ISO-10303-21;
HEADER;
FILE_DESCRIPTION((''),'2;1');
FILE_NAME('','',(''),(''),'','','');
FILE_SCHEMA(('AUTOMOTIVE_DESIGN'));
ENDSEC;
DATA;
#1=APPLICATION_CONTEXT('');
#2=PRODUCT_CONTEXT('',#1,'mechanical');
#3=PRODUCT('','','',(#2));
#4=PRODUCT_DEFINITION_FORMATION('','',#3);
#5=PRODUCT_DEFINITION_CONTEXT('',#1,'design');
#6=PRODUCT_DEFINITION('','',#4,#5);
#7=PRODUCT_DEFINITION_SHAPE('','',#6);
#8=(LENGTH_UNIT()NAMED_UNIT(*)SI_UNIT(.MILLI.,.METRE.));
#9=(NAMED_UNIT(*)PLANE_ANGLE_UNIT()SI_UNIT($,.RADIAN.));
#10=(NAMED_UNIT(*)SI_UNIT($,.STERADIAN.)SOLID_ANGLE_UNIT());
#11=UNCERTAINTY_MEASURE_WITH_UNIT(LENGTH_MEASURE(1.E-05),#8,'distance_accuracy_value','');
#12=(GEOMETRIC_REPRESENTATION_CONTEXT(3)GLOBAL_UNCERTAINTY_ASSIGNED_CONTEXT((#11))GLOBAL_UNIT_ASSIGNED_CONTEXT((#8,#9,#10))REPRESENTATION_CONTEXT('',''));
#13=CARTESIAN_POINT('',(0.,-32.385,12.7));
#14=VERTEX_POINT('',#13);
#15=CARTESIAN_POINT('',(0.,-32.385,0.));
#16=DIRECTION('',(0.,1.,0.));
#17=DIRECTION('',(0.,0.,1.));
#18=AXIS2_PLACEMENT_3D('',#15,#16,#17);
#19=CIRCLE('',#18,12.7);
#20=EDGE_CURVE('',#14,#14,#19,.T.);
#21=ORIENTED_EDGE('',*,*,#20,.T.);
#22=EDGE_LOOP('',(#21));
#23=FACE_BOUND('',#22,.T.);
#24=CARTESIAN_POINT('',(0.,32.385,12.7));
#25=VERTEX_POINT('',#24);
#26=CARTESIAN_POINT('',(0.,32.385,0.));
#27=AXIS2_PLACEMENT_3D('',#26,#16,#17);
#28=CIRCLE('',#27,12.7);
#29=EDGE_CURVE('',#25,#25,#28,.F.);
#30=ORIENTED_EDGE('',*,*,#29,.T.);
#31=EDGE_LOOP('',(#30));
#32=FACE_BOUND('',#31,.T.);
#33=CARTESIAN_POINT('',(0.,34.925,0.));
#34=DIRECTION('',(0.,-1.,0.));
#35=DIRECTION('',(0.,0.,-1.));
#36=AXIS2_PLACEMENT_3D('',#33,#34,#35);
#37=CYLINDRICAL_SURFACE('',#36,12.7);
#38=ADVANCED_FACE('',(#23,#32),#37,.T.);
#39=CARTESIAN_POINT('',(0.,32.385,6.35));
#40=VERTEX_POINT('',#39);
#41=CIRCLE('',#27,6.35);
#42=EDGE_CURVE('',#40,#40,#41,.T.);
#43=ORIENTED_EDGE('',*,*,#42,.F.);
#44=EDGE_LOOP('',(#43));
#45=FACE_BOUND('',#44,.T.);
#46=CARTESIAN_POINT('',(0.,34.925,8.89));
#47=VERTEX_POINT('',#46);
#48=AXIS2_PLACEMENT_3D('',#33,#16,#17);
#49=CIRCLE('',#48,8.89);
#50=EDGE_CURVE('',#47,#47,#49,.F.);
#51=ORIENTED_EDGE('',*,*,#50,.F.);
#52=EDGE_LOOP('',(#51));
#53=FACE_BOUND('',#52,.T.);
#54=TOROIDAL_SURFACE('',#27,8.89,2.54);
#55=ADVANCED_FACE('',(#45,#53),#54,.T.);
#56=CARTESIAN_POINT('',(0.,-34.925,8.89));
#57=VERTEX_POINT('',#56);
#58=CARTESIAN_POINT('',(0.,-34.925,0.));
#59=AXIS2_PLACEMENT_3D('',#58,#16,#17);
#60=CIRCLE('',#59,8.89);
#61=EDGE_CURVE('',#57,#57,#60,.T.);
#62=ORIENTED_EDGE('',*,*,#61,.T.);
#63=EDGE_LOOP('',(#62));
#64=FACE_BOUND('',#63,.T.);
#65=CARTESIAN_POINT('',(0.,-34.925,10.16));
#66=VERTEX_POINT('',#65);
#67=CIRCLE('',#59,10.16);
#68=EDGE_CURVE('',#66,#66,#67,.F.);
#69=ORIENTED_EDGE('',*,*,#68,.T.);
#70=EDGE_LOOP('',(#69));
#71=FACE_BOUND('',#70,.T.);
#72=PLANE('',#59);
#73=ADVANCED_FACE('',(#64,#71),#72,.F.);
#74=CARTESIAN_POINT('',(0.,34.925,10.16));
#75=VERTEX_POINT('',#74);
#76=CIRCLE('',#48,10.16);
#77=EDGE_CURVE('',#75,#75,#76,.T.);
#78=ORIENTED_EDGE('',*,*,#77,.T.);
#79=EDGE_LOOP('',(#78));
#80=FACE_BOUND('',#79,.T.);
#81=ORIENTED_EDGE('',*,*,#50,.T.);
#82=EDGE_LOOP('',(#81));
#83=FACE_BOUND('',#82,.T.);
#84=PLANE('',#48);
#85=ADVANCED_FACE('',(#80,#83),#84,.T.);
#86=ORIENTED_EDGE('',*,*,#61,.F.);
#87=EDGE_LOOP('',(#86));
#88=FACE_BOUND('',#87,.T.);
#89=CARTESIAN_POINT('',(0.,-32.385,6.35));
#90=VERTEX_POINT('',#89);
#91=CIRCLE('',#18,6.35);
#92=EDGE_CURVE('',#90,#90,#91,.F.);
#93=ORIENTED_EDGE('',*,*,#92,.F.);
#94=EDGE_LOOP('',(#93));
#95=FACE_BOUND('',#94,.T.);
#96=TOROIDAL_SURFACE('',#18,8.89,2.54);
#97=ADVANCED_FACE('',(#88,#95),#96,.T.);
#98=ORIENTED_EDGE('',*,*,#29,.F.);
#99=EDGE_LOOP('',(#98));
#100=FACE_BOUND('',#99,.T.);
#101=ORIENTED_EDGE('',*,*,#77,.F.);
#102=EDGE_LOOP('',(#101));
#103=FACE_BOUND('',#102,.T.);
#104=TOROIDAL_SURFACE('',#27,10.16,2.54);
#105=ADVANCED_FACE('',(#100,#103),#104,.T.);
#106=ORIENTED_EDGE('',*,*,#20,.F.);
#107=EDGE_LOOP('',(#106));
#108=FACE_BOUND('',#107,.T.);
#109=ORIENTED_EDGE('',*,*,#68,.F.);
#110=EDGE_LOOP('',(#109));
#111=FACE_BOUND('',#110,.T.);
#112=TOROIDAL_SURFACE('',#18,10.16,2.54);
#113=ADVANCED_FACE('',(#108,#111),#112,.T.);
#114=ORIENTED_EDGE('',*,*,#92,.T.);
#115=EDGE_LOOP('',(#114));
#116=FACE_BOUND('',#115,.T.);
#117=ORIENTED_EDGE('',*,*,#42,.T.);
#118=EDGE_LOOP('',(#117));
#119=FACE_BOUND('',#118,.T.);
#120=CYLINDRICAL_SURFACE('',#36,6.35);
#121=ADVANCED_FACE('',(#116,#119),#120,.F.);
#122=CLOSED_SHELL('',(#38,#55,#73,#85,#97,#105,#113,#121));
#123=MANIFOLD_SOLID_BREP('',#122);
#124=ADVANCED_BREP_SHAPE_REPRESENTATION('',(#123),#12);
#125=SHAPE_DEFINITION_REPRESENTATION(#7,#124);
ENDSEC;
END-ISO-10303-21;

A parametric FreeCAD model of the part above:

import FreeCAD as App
import Part
import Sketcher

V = App.Vector
Q = App.Units.Quantity


def edges_at(feature, points):
    """Names of the edges that pass closest to the given points."""
    edges = feature.Shape.Edges
    near = lambda p: min(range(len(edges)), key=lambda i: edges[i].distToShape(Part.Vertex(*p))[0])
    return sorted({f"Edge{near(p) + 1}" for p in points})

doc = App.newDocument("Part")
body = doc.addObject("PartDesign::Body", "Body")

sketch1 = body.newObject("Sketcher::SketchObject", "Sketch")
sketch1.AttachmentSupport = (doc.getObject("XZ_Plane"), [""])
sketch1.MapMode = "FlatFace"
sketch1.addGeometry([
    Part.Circle(V(0, 0, 0), V(0, 0, 1), 12.7),
    Part.Circle(V(0, 0, 0), V(0, 0, 1), 6.35),
], False)
sketch1.addConstraint([
    Sketcher.Constraint("Coincident", 0, 3, -1, 1),
    Sketcher.Constraint("Coincident", 1, 3, -1, 1),
    Sketcher.Constraint("Diameter", 0, Q("1 in")),
    Sketcher.Constraint("Diameter", 1, Q("0.5 in")),
])
pad1 = body.newObject("PartDesign::Pad", "Pad")
pad1.Profile = sketch1
pad1.Length = Q("2.75 in")
pad1.Midplane = True
doc.recompute()

fillet = body.newObject("PartDesign::Fillet", "Fillet")
fillet.Base = (pad1, edges_at(pad1, [
    (0, -34.925, -12.7),
    (0, 34.925, -12.7),
    (0, -34.925, -6.35),
    (0, 34.925, -6.35),
]))
fillet.Radius = Q("0.1 in")

doc.recompute()
